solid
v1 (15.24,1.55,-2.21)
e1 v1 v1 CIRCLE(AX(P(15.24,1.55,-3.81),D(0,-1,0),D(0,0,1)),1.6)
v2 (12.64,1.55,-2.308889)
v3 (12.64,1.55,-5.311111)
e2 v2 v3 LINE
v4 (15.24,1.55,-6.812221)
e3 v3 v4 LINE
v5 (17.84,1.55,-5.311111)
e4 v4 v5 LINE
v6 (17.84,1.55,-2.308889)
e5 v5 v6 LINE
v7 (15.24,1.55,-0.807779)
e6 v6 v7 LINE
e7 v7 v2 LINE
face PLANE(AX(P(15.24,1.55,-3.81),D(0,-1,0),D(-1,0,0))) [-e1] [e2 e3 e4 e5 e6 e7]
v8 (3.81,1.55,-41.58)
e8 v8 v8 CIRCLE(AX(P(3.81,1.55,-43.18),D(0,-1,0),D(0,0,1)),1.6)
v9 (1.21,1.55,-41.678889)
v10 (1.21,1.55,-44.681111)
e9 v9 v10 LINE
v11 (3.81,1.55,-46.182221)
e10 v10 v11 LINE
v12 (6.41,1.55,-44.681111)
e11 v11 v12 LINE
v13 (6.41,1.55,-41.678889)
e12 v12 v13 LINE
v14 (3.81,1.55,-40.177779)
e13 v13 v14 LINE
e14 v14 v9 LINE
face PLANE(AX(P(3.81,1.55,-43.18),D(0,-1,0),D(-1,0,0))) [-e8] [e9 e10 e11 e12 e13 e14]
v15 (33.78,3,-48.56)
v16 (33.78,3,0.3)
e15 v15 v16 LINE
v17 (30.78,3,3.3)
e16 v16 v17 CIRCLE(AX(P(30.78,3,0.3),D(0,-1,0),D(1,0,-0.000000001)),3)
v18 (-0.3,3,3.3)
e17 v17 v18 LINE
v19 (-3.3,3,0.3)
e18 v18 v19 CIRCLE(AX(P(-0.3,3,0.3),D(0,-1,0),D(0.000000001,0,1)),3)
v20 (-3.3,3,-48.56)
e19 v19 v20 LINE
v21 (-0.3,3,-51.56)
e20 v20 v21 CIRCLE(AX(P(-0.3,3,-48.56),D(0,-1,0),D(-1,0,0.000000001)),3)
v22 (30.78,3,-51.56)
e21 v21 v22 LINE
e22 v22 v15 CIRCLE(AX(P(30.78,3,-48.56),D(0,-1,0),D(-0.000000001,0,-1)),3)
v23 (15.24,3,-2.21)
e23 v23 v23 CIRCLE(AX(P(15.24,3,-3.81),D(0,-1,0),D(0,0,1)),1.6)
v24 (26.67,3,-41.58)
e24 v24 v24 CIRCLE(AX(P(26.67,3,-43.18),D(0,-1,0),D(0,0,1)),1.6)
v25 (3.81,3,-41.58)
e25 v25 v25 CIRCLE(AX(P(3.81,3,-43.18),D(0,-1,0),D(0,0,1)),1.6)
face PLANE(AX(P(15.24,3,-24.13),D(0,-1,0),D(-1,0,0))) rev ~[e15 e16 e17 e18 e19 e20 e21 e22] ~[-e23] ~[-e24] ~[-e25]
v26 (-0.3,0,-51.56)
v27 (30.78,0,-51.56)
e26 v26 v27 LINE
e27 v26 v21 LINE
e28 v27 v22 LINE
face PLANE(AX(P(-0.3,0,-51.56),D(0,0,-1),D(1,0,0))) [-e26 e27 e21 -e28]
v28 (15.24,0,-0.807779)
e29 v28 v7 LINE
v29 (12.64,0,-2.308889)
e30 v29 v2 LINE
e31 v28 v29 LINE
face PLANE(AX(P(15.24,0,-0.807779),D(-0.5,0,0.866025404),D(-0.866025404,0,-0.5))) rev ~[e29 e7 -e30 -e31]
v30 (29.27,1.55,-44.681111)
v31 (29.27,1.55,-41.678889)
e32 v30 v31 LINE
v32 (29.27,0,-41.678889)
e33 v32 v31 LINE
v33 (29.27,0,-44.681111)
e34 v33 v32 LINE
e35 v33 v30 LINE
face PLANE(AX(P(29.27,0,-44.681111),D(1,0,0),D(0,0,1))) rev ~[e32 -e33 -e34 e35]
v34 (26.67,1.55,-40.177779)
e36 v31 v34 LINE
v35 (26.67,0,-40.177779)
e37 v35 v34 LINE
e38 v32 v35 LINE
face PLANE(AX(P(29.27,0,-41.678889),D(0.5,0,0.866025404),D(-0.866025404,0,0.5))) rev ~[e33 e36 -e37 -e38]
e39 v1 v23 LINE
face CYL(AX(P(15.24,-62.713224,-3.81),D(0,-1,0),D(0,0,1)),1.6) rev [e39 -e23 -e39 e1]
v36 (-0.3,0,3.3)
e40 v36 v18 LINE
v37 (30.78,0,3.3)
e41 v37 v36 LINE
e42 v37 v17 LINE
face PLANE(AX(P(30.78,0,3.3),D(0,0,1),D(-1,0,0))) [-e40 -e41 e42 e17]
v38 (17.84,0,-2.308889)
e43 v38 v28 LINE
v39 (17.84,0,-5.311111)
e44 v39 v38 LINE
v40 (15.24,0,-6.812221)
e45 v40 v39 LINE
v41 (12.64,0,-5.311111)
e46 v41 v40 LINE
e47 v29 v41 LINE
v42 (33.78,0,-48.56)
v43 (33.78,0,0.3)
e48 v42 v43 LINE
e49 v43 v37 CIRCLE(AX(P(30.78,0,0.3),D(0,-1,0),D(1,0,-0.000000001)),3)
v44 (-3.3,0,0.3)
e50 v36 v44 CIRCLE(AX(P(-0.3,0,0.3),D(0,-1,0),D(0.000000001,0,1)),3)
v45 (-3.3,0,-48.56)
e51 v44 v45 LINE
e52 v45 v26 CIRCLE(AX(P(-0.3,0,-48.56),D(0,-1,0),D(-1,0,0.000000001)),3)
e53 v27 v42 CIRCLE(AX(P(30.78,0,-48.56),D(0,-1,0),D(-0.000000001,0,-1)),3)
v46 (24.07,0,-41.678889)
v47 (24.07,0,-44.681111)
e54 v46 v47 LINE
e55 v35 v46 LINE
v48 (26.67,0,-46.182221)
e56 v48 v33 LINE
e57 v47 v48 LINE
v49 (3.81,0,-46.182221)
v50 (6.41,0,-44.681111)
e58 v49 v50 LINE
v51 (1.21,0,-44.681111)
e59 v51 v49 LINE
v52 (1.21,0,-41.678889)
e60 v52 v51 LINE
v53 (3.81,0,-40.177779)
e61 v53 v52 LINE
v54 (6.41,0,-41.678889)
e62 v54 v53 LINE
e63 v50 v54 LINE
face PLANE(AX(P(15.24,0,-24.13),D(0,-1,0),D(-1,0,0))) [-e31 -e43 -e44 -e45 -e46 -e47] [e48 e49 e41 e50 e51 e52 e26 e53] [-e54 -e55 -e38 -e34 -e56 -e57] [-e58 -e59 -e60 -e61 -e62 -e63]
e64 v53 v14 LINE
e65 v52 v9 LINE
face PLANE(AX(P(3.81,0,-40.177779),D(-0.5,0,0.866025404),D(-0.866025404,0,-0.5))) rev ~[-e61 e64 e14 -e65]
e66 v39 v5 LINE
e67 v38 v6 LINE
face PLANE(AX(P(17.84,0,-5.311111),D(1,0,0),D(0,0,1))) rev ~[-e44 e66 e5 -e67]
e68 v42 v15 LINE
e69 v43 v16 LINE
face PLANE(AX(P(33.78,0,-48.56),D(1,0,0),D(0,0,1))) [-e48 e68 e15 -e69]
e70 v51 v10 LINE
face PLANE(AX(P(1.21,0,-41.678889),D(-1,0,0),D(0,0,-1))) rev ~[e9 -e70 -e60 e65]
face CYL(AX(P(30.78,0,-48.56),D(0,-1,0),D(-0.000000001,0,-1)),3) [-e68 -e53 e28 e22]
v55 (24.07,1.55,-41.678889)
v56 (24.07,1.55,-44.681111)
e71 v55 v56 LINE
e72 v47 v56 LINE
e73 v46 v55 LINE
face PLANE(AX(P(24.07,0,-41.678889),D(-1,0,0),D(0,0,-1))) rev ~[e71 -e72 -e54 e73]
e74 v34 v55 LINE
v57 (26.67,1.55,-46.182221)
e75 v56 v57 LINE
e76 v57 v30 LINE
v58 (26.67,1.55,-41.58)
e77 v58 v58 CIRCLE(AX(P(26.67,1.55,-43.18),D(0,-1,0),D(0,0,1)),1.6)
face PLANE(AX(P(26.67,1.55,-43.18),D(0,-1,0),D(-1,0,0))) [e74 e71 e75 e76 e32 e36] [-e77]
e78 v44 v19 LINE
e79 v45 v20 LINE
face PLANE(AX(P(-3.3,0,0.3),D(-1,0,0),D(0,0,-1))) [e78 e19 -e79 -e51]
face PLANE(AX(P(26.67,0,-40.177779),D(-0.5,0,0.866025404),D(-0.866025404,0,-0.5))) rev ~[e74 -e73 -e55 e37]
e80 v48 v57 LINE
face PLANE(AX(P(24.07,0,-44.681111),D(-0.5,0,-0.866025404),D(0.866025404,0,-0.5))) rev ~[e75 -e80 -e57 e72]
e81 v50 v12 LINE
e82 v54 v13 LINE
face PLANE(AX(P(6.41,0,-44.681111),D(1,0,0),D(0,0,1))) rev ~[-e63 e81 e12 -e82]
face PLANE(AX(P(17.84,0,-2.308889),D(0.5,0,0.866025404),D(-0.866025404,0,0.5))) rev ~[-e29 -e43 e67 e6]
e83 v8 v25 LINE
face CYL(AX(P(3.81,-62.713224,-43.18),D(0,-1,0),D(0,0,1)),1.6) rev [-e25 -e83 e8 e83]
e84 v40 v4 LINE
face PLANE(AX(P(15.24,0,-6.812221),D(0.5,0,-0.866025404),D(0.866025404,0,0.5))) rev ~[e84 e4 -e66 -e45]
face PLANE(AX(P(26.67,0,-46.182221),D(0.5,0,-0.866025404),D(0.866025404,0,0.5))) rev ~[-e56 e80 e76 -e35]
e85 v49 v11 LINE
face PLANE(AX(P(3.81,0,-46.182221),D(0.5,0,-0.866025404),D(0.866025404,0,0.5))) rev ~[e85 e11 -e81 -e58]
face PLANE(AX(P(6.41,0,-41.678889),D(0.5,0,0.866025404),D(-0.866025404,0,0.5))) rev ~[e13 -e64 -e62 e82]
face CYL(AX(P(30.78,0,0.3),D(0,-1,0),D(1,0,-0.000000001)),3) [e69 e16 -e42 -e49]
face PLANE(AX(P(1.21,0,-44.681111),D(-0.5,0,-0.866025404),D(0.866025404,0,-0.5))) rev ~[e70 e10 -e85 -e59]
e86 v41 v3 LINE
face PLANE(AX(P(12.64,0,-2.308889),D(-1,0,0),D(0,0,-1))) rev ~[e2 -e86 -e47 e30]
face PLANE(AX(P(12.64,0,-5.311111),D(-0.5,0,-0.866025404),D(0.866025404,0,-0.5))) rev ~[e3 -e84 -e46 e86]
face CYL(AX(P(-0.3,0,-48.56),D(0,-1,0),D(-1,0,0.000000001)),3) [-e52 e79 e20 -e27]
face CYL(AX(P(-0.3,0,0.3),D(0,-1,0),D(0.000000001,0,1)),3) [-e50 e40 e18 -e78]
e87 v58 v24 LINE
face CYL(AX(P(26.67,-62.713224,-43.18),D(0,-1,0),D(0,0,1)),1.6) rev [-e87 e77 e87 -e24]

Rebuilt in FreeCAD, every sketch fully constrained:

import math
import FreeCAD as App
import Part
import Sketcher
Q = App.Units.Quantity

doc = App.newDocument("Part")
body = doc.addObject("PartDesign::Body", "Body")

sketch1 = doc.addObject("Sketcher::SketchObject", "Sketch")
body.addObject(sketch1)
sketch1.AttachmentSupport = (doc.XZ_Plane, [""])
sketch1.MapMode = "FlatFace"
sketch1.addGeometry(Part.LineSegment(App.Vector(-3.3, -48.56, 0), App.Vector(-3.3, 0.3, 0)), False)
sketch1.addGeometry(Part.ArcOfCircle(Part.Circle(App.Vector(-0.3, 0.3, 0), App.Vector(0, 0, 1), 3), math.radians(90), math.radians(180)), False)
sketch1.addGeometry(Part.LineSegment(App.Vector(-0.3, 3.3, 0), App.Vector(30.78, 3.3, 0)), False)
sketch1.addGeometry(Part.ArcOfCircle(Part.Circle(App.Vector(30.78, 0.3, 0), App.Vector(0, 0, 1), 3), math.radians(0), math.radians(90)), False)
sketch1.addGeometry(Part.LineSegment(App.Vector(33.78, 0.3, 0), App.Vector(33.78, -48.56, 0)), False)
sketch1.addGeometry(Part.ArcOfCircle(Part.Circle(App.Vector(30.78, -48.56, 0), App.Vector(0, 0, 1), 3), math.radians(-90), math.radians(0)), False)
sketch1.addGeometry(Part.LineSegment(App.Vector(30.78, -51.56, 0), App.Vector(-0.3, -51.56, 0)), False)
sketch1.addGeometry(Part.ArcOfCircle(Part.Circle(App.Vector(-0.3, -48.56, 0), App.Vector(0, 0, 1), 3), math.radians(180), math.radians(270)), False)
sketch1.addConstraint(Sketcher.Constraint("Tangent", 0, 2, 1, 2))
sketch1.addConstraint(Sketcher.Constraint("Tangent", 1, 1, 2, 1))
sketch1.addConstraint(Sketcher.Constraint("Tangent", 2, 2, 3, 2))
sketch1.addConstraint(Sketcher.Constraint("Tangent", 3, 1, 4, 1))
sketch1.addConstraint(Sketcher.Constraint("Tangent", 4, 2, 5, 2))
sketch1.addConstraint(Sketcher.Constraint("Tangent", 5, 1, 6, 1))
sketch1.addConstraint(Sketcher.Constraint("Tangent", 6, 2, 7, 2))
sketch1.addConstraint(Sketcher.Constraint("Tangent", 7, 1, 0, 1))
sketch1.addConstraint(Sketcher.Constraint("Vertical", 0))
sketch1.addConstraint(Sketcher.Constraint("Horizontal", 2))
sketch1.addConstraint(Sketcher.Constraint("Vertical", 4))
sketch1.addConstraint(Sketcher.Constraint("Horizontal", 6))
sketch1.addConstraint(Sketcher.Constraint("Equal", 1, 3))
sketch1.addConstraint(Sketcher.Constraint("Equal", 3, 5))
sketch1.addConstraint(Sketcher.Constraint("Equal", 5, 7))
sketch1.addConstraint(Sketcher.Constraint("Radius", 1, Q("3 mm")))
sketch1.addConstraint(Sketcher.Constraint("DistanceX", 2, 1, 2, 2, Q("31.08 mm")))
sketch1.addConstraint(Sketcher.Constraint("DistanceY", 0, 1, 0, 2, Q("48.86 mm")))
sketch1.addConstraint(Sketcher.Constraint("DistanceX", 1, 3, -1, 1, Q("0.3 mm")))
sketch1.addConstraint(Sketcher.Constraint("DistanceY", -1, 1, 1, 3, Q("0.3 mm")))
pad1 = doc.addObject("PartDesign::Pad", "Pad")
body.addObject(pad1)
pad1.Profile = sketch1
pad1.Length = 3
pad1.Reversed = True

sketch2 = doc.addObject("Sketcher::SketchObject", "Sketch001")
body.addObject(sketch2)
sketch2.AttachmentSupport = (doc.XZ_Plane, [""])
sketch2.MapMode = "FlatFace"
sketch2.addGeometry(Part.Circle(App.Vector(3.81, -43.18, 0), App.Vector(0, 0, 1), 1.6), False)
sketch2.addGeometry(Part.Circle(App.Vector(26.67, -43.18, 0), App.Vector(0, 0, 1), 1.6), False)
sketch2.addGeometry(Part.Circle(App.Vector(15.24, -3.81, 0), App.Vector(0, 0, 1), 1.6), False)
sketch2.addConstraint(Sketcher.Constraint("Equal", 0, 1))
sketch2.addConstraint(Sketcher.Constraint("Equal", 1, 2))
sketch2.addConstraint(Sketcher.Constraint("Horizontal", 0, 3, 1, 3))
sketch2.addConstraint(Sketcher.Constraint("Diameter", 0, Q("3.2 mm")))
sketch2.addConstraint(Sketcher.Constraint("DistanceX", -1, 1, 0, 3, Q("3.81 mm")))
sketch2.addConstraint(Sketcher.Constraint("DistanceY", 0, 3, -1, 1, Q("43.18 mm")))
sketch2.addConstraint(Sketcher.Constraint("DistanceX", -1, 1, 1, 3, Q("26.67 mm")))
sketch2.addConstraint(Sketcher.Constraint("DistanceX", -1, 1, 2, 3, Q("15.24 mm")))
sketch2.addConstraint(Sketcher.Constraint("DistanceY", 2, 3, -1, 1, Q("3.81 mm")))
pocket1 = doc.addObject("PartDesign::Pocket", "Pocket")
body.addObject(pocket1)
pocket1.Profile = sketch2
pocket1.Type = "ThroughAll"
pocket1.Midplane = True

sketch3 = doc.addObject("Sketcher::SketchObject", "Sketch002")
body.addObject(sketch3)
sketch3.AttachmentSupport = (doc.XZ_Plane, [""])
sketch3.MapMode = "FlatFace"
sketch3.addGeometry(Part.LineSegment(App.Vector(1.21, -44.681111, 0), App.Vector(3.81, -46.182221, 0)), False)
sketch3.addGeometry(Part.LineSegment(App.Vector(3.81, -46.182221, 0), App.Vector(6.41, -44.681111, 0)), False)
sketch3.addGeometry(Part.LineSegment(App.Vector(6.41, -44.681111, 0), App.Vector(6.41, -41.678889, 0)), False)
sketch3.addGeometry(Part.LineSegment(App.Vector(6.41, -41.678889, 0), App.Vector(3.81, -40.177779, 0)), False)
sketch3.addGeometry(Part.LineSegment(App.Vector(3.81, -40.177779, 0), App.Vector(1.21, -41.678889, 0)), False)
sketch3.addGeometry(Part.LineSegment(App.Vector(1.21, -41.678889, 0), App.Vector(1.21, -44.681111, 0)), False)
sketch3.addGeometry(Part.LineSegment(App.Vector(24.07, -44.681111, 0), App.Vector(26.67, -46.182221, 0)), False)
sketch3.addGeometry(Part.LineSegment(App.Vector(26.67, -46.182221, 0), App.Vector(29.27, -44.681111, 0)), False)
sketch3.addGeometry(Part.LineSegment(App.Vector(29.27, -44.681111, 0), App.Vector(29.27, -41.678889, 0)), False)
sketch3.addGeometry(Part.LineSegment(App.Vector(29.27, -41.678889, 0), App.Vector(26.67, -40.177779, 0)), False)
sketch3.addGeometry(Part.LineSegment(App.Vector(26.67, -40.177779, 0), App.Vector(24.07, -41.678889, 0)), False)
sketch3.addGeometry(Part.LineSegment(App.Vector(24.07, -41.678889, 0), App.Vector(24.07, -44.681111, 0)), False)
sketch3.addGeometry(Part.LineSegment(App.Vector(12.64, -5.311111, 0), App.Vector(15.24, -6.812221, 0)), False)
sketch3.addGeometry(Part.LineSegment(App.Vector(15.24, -6.812221, 0), App.Vector(17.84, -5.311111, 0)), False)
sketch3.addGeometry(Part.LineSegment(App.Vector(17.84, -5.311111, 0), App.Vector(17.84, -2.308889, 0)), False)
sketch3.addGeometry(Part.LineSegment(App.Vector(17.84, -2.308889, 0), App.Vector(15.24, -0.807779, 0)), False)
sketch3.addGeometry(Part.LineSegment(App.Vector(15.24, -0.807779, 0), App.Vector(12.64, -2.308889, 0)), False)
sketch3.addGeometry(Part.LineSegment(App.Vector(12.64, -2.308889, 0), App.Vector(12.64, -5.311111, 0)), False)
sketch3.addConstraint(Sketcher.Constraint("Coincident", 0, 2, 1, 1))
sketch3.addConstraint(Sketcher.Constraint("Coincident", 1, 2, 2, 1))
sketch3.addConstraint(Sketcher.Constraint("Coincident", 2, 2, 3, 1))
sketch3.addConstraint(Sketcher.Constraint("Coincident", 3, 2, 4, 1))
sketch3.addConstraint(Sketcher.Constraint("Coincident", 4, 2, 5, 1))
sketch3.addConstraint(Sketcher.Constraint("Coincident", 5, 2, 0, 1))
sketch3.addConstraint(Sketcher.Constraint("Coincident", 6, 2, 7, 1))
sketch3.addConstraint(Sketcher.Constraint("Coincident", 7, 2, 8, 1))
sketch3.addConstraint(Sketcher.Constraint("Coincident", 8, 2, 9, 1))
sketch3.addConstraint(Sketcher.Constraint("Coincident", 9, 2, 10, 1))
sketch3.addConstraint(Sketcher.Constraint("Coincident", 10, 2, 11, 1))
sketch3.addConstraint(Sketcher.Constraint("Coincident", 11, 2, 6, 1))
sketch3.addConstraint(Sketcher.Constraint("Coincident", 12, 2, 13, 1))
sketch3.addConstraint(Sketcher.Constraint("Coincident", 13, 2, 14, 1))
sketch3.addConstraint(Sketcher.Constraint("Coincident", 14, 2, 15, 1))
sketch3.addConstraint(Sketcher.Constraint("Coincident", 15, 2, 16, 1))
sketch3.addConstraint(Sketcher.Constraint("Coincident", 16, 2, 17, 1))
sketch3.addConstraint(Sketcher.Constraint("Coincident", 17, 2, 12, 1))
sketch3.addConstraint(Sketcher.Constraint("Vertical", 2))
sketch3.addConstraint(Sketcher.Constraint("Vertical", 5))
sketch3.addConstraint(Sketcher.Constraint("Vertical", 8))
sketch3.addConstraint(Sketcher.Constraint("Vertical", 11))
sketch3.addConstraint(Sketcher.Constraint("Vertical", 14))
sketch3.addConstraint(Sketcher.Constraint("Vertical", 17))
sketch3.addConstraint(Sketcher.Constraint("Parallel", 0, 3))
sketch3.addConstraint(Sketcher.Constraint("Parallel", 1, 4))
sketch3.addConstraint(Sketcher.Constraint("Parallel", 3, 6))
sketch3.addConstraint(Sketcher.Constraint("Parallel", 4, 7))
sketch3.addConstraint(Sketcher.Constraint("Parallel", 6, 9))
sketch3.addConstraint(Sketcher.Constraint("Parallel", 7, 10))
sketch3.addConstraint(Sketcher.Constraint("Parallel", 9, 12))
sketch3.addConstraint(Sketcher.Constraint("Parallel", 10, 13))
sketch3.addConstraint(Sketcher.Constraint("Parallel", 12, 15))
sketch3.addConstraint(Sketcher.Constraint("Parallel", 13, 16))
sketch3.addConstraint(Sketcher.Constraint("Horizontal", 2, 2, 4, 2))
sketch3.addConstraint(Sketcher.Constraint("Horizontal", 1, 2, 5, 2))
sketch3.addConstraint(Sketcher.Constraint("Horizontal", 0, 2, 6, 2))
sketch3.addConstraint(Sketcher.Constraint("Horizontal", 5, 2, 7, 2))
sketch3.addConstraint(Sketcher.Constraint("Horizontal", 4, 2, 8, 2))
sketch3.addConstraint(Sketcher.Constraint("Horizontal", 3, 2, 9, 2))
sketch3.addConstraint(Sketcher.Constraint("Horizontal", 8, 2, 10, 2))
sketch3.addConstraint(Sketcher.Constraint("Horizontal", 14, 2, 16, 2))
sketch3.addConstraint(Sketcher.Constraint("Horizontal", 13, 2, 17, 2))
sketch3.addConstraint(Sketcher.Constraint("Vertical", 0, 2, 3, 2))
sketch3.addConstraint(Sketcher.Constraint("Equal", 11, 14))
sketch3.addConstraint(Sketcher.Constraint("Equal", 10, 12))
sketch3.addConstraint(Sketcher.Constraint("Angle", 0, Q("-30 deg")))
sketch3.addConstraint(Sketcher.Constraint("DistanceX", 0, 2, 1, 2, Q("2.6 mm")))
sketch3.addConstraint(Sketcher.Constraint("DistanceX", -1, 1, 0, 2, Q("3.81 mm")))
sketch3.addConstraint(Sketcher.Constraint("DistanceX", -1, 1, 6, 2, Q("26.67 mm")))
sketch3.addConstraint(Sketcher.Constraint("DistanceX", -1, 1, 12, 2, Q("15.24 mm")))
sketch3.addConstraint(Sketcher.Constraint("DistanceY", 10, 2, 14, 2, Q("39.37 mm")))
sketch3.addConstraint(Sketcher.Constraint("DistanceY", 2, 1, 2, 2, Q("3.002221 mm")))
sketch3.addConstraint(Sketcher.Constraint("DistanceY", 0, 2, -1, 1, Q("46.182221 mm")))
pocket2 = doc.addObject("PartDesign::Pocket", "Pocket001")
body.addObject(pocket2)
pocket2.Profile = sketch3
pocket2.Length = 1.55

doc.recompute()
